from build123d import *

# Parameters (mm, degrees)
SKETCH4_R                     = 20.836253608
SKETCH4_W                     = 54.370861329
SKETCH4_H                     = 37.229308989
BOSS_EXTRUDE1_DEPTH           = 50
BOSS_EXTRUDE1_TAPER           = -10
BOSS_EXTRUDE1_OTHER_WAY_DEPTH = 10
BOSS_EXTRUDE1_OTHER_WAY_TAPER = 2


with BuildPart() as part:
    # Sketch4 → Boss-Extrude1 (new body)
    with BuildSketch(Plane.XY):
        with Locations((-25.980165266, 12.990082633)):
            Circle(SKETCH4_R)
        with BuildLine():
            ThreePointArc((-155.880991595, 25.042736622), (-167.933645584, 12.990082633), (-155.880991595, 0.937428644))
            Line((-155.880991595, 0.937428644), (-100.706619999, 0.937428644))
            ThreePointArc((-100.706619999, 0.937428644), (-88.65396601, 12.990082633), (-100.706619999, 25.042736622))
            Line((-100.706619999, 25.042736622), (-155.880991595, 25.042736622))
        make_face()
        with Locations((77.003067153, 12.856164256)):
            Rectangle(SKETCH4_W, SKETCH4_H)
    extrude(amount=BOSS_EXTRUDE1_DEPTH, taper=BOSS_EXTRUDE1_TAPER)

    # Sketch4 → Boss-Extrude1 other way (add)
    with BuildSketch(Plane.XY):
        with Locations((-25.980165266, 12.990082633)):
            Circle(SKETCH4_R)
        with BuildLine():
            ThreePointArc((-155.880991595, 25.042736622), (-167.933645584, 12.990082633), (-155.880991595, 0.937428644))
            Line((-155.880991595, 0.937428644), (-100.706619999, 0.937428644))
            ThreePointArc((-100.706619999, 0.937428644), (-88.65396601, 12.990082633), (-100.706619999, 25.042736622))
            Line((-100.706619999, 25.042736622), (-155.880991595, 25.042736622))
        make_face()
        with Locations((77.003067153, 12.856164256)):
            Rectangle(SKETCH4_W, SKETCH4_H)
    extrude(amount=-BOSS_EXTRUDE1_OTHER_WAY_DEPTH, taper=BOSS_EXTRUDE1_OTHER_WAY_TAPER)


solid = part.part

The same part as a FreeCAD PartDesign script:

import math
import FreeCAD as App
import Part
import Sketcher
Q = App.Units.Quantity

doc = App.newDocument("Part")
body = doc.addObject("PartDesign::Body", "Body")
body.AllowCompound = True

sketch1 = body.newObject("Sketcher::SketchObject", "Sketch")
sketch1.AttachmentSupport = (doc.getObject("XY_Plane"), [""])
sketch1.MapMode = "FlatFace"
sketch1.addGeometry(Part.Circle(App.Vector(-26, 13, 0), App.Vector(0, 0, 1), 21), False)
sketch1.addGeometry(Part.ArcOfCircle(Part.Circle(App.Vector(-156, 13, 0), App.Vector(0, 0, 1), 12), math.radians(90), math.radians(270)), False)
sketch1.addGeometry(Part.LineSegment(App.Vector(-156, 1, 0), App.Vector(-101, 1, 0)), False)
sketch1.addGeometry(Part.ArcOfCircle(Part.Circle(App.Vector(-101, 13, 0), App.Vector(0, 0, 1), 12), math.radians(-90), math.radians(90)), False)
sketch1.addGeometry(Part.LineSegment(App.Vector(-101, 25, 0), App.Vector(-156, 25, 0)), False)
sketch1.addGeometry(Part.LineSegment(App.Vector(50, 31, 0), App.Vector(50, -6, 0)), False)
sketch1.addGeometry(Part.LineSegment(App.Vector(50, -6, 0), App.Vector(104, -6, 0)), False)
sketch1.addGeometry(Part.LineSegment(App.Vector(104, -6, 0), App.Vector(104, 31, 0)), False)
sketch1.addGeometry(Part.LineSegment(App.Vector(104, 31, 0), App.Vector(50, 31, 0)), False)
sketch1.addConstraint(Sketcher.Constraint("Tangent", 1, 2, 2, 1))
sketch1.addConstraint(Sketcher.Constraint("Tangent", 2, 2, 3, 1))
sketch1.addConstraint(Sketcher.Constraint("Tangent", 3, 2, 4, 1))
sketch1.addConstraint(Sketcher.Constraint("Tangent", 4, 2, 1, 1))
sketch1.addConstraint(Sketcher.Constraint("Coincident", 5, 2, 6, 1))
sketch1.addConstraint(Sketcher.Constraint("Coincident", 6, 2, 7, 1))
sketch1.addConstraint(Sketcher.Constraint("Coincident", 7, 2, 8, 1))
sketch1.addConstraint(Sketcher.Constraint("Coincident", 8, 2, 5, 1))
sketch1.addConstraint(Sketcher.Constraint("Horizontal", 2))
sketch1.addConstraint(Sketcher.Constraint("Horizontal", 4))
sketch1.addConstraint(Sketcher.Constraint("Vertical", 5))
sketch1.addConstraint(Sketcher.Constraint("Horizontal", 6))
sketch1.addConstraint(Sketcher.Constraint("Vertical", 7))
sketch1.addConstraint(Sketcher.Constraint("Horizontal", 8))
sketch1.addConstraint(Sketcher.Constraint("Horizontal", 0, 3, 1, 3))
sketch1.addConstraint(Sketcher.Constraint("Diameter", 0, Q("41.672507 mm")))
sketch1.addConstraint(Sketcher.Constraint("Radius", 1, Q("12.052654 mm")))
sketch1.addConstraint(Sketcher.Constraint("DistanceX", 2, 1, 2, 2, Q("55.174372 mm")))
sketch1.addConstraint(Sketcher.Constraint("DistanceX", 6, 1, 6, 2, Q("54.370861 mm")))
sketch1.addConstraint(Sketcher.Constraint("DistanceY", 5, 2, 5, 1, Q("37.229309 mm")))
sketch1.addConstraint(Sketcher.Constraint("DistanceX", 0, 3, 5, 2, Q("75.797802 mm")))
sketch1.addConstraint(Sketcher.Constraint("DistanceX", 1, 3, -1, 1, Q("155.880992 mm")))
sketch1.addConstraint(Sketcher.Constraint("DistanceY", -1, 1, 1, 2, Q("0.937429 mm")))
sketch1.addConstraint(Sketcher.Constraint("DistanceY", 5, 2, -1, 1, Q("5.75849 mm")))
sketch1.addConstraint(Sketcher.Constraint("DistanceX", 1, 2, 5, 2, Q("205.698628 mm")))
pad1 = body.newObject("PartDesign::Pad", "Pad")
pad1.Profile = sketch1
pad1.Length = 50
pad1.TaperAngle = 10

sketch2 = body.newObject("Sketcher::SketchObject", "Sketch001")
sketch2.AttachmentSupport = (doc.getObject("XY_Plane"), [""])
sketch2.MapMode = "FlatFace"
sketch2.addGeometry(Part.Circle(App.Vector(-26, 13, 0), App.Vector(0, 0, 1), 21), False)
sketch2.addGeometry(Part.ArcOfCircle(Part.Circle(App.Vector(-156, 13, 0), App.Vector(0, 0, 1), 12), math.radians(90), math.radians(270)), False)
sketch2.addGeometry(Part.LineSegment(App.Vector(-156, 1, 0), App.Vector(-101, 1, 0)), False)
sketch2.addGeometry(Part.ArcOfCircle(Part.Circle(App.Vector(-101, 13, 0), App.Vector(0, 0, 1), 12), math.radians(-90), math.radians(90)), False)
sketch2.addGeometry(Part.LineSegment(App.Vector(-101, 25, 0), App.Vector(-156, 25, 0)), False)
sketch2.addGeometry(Part.LineSegment(App.Vector(50, 31, 0), App.Vector(50, -6, 0)), False)
sketch2.addGeometry(Part.LineSegment(App.Vector(50, -6, 0), App.Vector(104, -6, 0)), False)
sketch2.addGeometry(Part.LineSegment(App.Vector(104, -6, 0), App.Vector(104, 31, 0)), False)
sketch2.addGeometry(Part.LineSegment(App.Vector(104, 31, 0), App.Vector(50, 31, 0)), False)
sketch2.addConstraint(Sketcher.Constraint("Tangent", 1, 2, 2, 1))
sketch2.addConstraint(Sketcher.Constraint("Tangent", 2, 2, 3, 1))
sketch2.addConstraint(Sketcher.Constraint("Tangent", 3, 2, 4, 1))
sketch2.addConstraint(Sketcher.Constraint("Tangent", 4, 2, 1, 1))
sketch2.addConstraint(Sketcher.Constraint("Coincident", 5, 2, 6, 1))
sketch2.addConstraint(Sketcher.Constraint("Coincident", 6, 2, 7, 1))
sketch2.addConstraint(Sketcher.Constraint("Coincident", 7, 2, 8, 1))
sketch2.addConstraint(Sketcher.Constraint("Coincident", 8, 2, 5, 1))
sketch2.addConstraint(Sketcher.Constraint("Horizontal", 2))
sketch2.addConstraint(Sketcher.Constraint("Horizontal", 4))
sketch2.addConstraint(Sketcher.Constraint("Vertical", 5))
sketch2.addConstraint(Sketcher.Constraint("Horizontal", 6))
sketch2.addConstraint(Sketcher.Constraint("Vertical", 7))
sketch2.addConstraint(Sketcher.Constraint("Horizontal", 8))
sketch2.addConstraint(Sketcher.Constraint("Horizontal", 0, 3, 1, 3))
sketch2.addConstraint(Sketcher.Constraint("Diameter", 0, Q("41.672507 mm")))
sketch2.addConstraint(Sketcher.Constraint("Radius", 1, Q("12.052654 mm")))
sketch2.addConstraint(Sketcher.Constraint("DistanceX", 2, 1, 2, 2, Q("55.174372 mm")))
sketch2.addConstraint(Sketcher.Constraint("DistanceX", 6, 1, 6, 2, Q("54.370861 mm")))
sketch2.addConstraint(Sketcher.Constraint("DistanceY", 5, 2, 5, 1, Q("37.229309 mm")))
sketch2.addConstraint(Sketcher.Constraint("DistanceX", 0, 3, 5, 2, Q("75.797802 mm")))
sketch2.addConstraint(Sketcher.Constraint("DistanceX", 1, 3, -1, 1, Q("155.880992 mm")))
sketch2.addConstraint(Sketcher.Constraint("DistanceY", -1, 1, 1, 2, Q("0.937429 mm")))
sketch2.addConstraint(Sketcher.Constraint("DistanceY", 5, 2, -1, 1, Q("5.75849 mm")))
sketch2.addConstraint(Sketcher.Constraint("DistanceX", 1, 2, 5, 2, Q("205.698628 mm")))
pad2 = body.newObject("PartDesign::Pad", "Pad001")
pad2.Profile = sketch2
pad2.Length = 10
pad2.Reversed = True
pad2.TaperAngle = -2

doc.recompute()
